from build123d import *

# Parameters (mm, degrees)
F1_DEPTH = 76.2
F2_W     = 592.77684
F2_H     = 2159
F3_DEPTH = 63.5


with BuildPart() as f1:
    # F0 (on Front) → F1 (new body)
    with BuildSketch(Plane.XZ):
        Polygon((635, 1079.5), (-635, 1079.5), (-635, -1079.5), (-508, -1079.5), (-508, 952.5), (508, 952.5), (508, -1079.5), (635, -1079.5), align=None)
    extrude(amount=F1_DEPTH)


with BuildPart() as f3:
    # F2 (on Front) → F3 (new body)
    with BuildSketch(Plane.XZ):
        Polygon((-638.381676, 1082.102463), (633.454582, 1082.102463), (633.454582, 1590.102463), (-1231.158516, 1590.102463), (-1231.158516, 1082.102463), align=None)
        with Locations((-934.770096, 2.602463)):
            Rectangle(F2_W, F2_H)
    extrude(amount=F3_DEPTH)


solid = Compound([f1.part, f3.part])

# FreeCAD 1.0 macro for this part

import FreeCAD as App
import Part
import Sketcher
from FreeCAD import Vector
Q = App.Units.Quantity


def add_polygon(sketch, points):
    """Adds a closed chain of lines whose ends are joined by coincident constraints."""
    first, n = sketch.GeometryCount, len(points)
    for a, b in zip(points, points[1:] + points[:1]):
        sketch.addGeometry(Part.LineSegment(App.Vector(*a, 0), App.Vector(*b, 0)), False)
    for i in range(n):
        sketch.addConstraint(Sketcher.Constraint("Coincident", first + i, 2, first + (i + 1) % n, 1))

doc = App.newDocument("Part")
params = doc.addObject("Spreadsheet::Sheet", "Params")
for row, (alias, value) in enumerate([
    ("sketch1_width", "50 in"),
    ("sketch1_width2", "5 in"),
    ("sketch1_height", "85 in"),
    ("sketch1_height2", "80 in"),
    ("pad1_length", "3 in"),
    ("sketch2_height", "20 in"),
    ("sketch2_height2", "105 in"),
    ("pad2_length", "2.5 in"),
], start=1):
    params.set(f"A{row}", alias)
    params.set(f"B{row}", "=" + value)
    params.setAlias(f"B{row}", alias)

body = doc.addObject("PartDesign::Body", "Body")

# Sketch on XZ plane
sketch1 = doc.addObject("Sketcher::SketchObject", "Sketch")
body.addObject(sketch1)
sketch1.AttachmentSupport = (doc.XZ_Plane, [""])
sketch1.MapMode = "FlatFace"
add_polygon(sketch1, [(635, 1080), (-635, 1080), (-635, -1080), (-508, -1080), (-508, 952), (508, 952), (508, -1080), (635, -1080)])  # lines 0-7
sketch1.addConstraint([
    Sketcher.Constraint("Horizontal", 0),
    Sketcher.Constraint("Vertical", 1),
    Sketcher.Constraint("Horizontal", 2),
    Sketcher.Constraint("Vertical", 3),
    Sketcher.Constraint("Horizontal", 4),
    Sketcher.Constraint("Vertical", 5),
    Sketcher.Constraint("Horizontal", 6),
    Sketcher.Constraint("Vertical", 7),
    Sketcher.Constraint("Symmetric", 0, 2, 6, 2, -1, 1),
    Sketcher.Constraint("Symmetric", 2, 2, 5, 2, -2),
    Sketcher.Constraint("DistanceX", 0, 2, 0, 1, Q("50 in")),
    Sketcher.Constraint("DistanceX", 2, 1, 2, 2, Q("5 in")),
    Sketcher.Constraint("DistanceY", 1, 2, 1, 1, Q("85 in")),
    Sketcher.Constraint("DistanceY", 3, 1, 3, 2, Q("80 in")),
])
sketch1.setExpression("Constraints[18]", "Params.sketch1_width")
sketch1.setExpression("Constraints[19]", "Params.sketch1_width2")
sketch1.setExpression("Constraints[20]", "Params.sketch1_height")
sketch1.setExpression("Constraints[21]", "Params.sketch1_height2")
pad1 = doc.addObject("PartDesign::Pad", "Pad")
body.addObject(pad1)
pad1.Profile = sketch1
pad1.setExpression("Length", "Params.pad1_length")
body2 = doc.addObject("PartDesign::Body", "Body001")

# Sketch on XZ plane
sketch2 = doc.addObject("Sketcher::SketchObject", "Sketch001")
body2.addObject(sketch2)
sketch2.AttachmentSupport = (doc.getObject("XZ_Plane001"), [""])
sketch2.MapMode = "FlatFace"
add_polygon(sketch2, [(633, 1082), (633, 1590), (-1231, 1590), (-1231, -1077), (-638, -1077), (-638, 1082)])  # lines 0-5
sketch2.addConstraint([
    Sketcher.Constraint("Vertical", 0),
    Sketcher.Constraint("Horizontal", 1),
    Sketcher.Constraint("Vertical", 2),
    Sketcher.Constraint("Horizontal", 3),
    Sketcher.Constraint("Vertical", 4),
    Sketcher.Constraint("Horizontal", 5),
    Sketcher.Constraint("DistanceY", 0, 1, 0, 2, Q("20 in")),
    Sketcher.Constraint("DistanceY", 2, 2, 2, 1, Q("105 in")),
    Sketcher.Constraint("DistanceX", 3, 1, 3, 2, 592.77684),
    Sketcher.Constraint("DistanceX", 1, 2, 1, 1, 1864.613098),
    Sketcher.Constraint("DistanceX", -1, 1, 0, 2, 633.454582),
    Sketcher.Constraint("DistanceY", -1, 1, 0, 2, 1590.102463),
])
sketch2.setExpression("Constraints[12]", "Params.sketch2_height")
sketch2.setExpression("Constraints[13]", "Params.sketch2_height2")
pad2 = doc.addObject("PartDesign::Pad", "Pad001")
body2.addObject(pad2)
pad2.Profile = sketch2
pad2.setExpression("Length", "Params.pad2_length")

doc.recompute()
